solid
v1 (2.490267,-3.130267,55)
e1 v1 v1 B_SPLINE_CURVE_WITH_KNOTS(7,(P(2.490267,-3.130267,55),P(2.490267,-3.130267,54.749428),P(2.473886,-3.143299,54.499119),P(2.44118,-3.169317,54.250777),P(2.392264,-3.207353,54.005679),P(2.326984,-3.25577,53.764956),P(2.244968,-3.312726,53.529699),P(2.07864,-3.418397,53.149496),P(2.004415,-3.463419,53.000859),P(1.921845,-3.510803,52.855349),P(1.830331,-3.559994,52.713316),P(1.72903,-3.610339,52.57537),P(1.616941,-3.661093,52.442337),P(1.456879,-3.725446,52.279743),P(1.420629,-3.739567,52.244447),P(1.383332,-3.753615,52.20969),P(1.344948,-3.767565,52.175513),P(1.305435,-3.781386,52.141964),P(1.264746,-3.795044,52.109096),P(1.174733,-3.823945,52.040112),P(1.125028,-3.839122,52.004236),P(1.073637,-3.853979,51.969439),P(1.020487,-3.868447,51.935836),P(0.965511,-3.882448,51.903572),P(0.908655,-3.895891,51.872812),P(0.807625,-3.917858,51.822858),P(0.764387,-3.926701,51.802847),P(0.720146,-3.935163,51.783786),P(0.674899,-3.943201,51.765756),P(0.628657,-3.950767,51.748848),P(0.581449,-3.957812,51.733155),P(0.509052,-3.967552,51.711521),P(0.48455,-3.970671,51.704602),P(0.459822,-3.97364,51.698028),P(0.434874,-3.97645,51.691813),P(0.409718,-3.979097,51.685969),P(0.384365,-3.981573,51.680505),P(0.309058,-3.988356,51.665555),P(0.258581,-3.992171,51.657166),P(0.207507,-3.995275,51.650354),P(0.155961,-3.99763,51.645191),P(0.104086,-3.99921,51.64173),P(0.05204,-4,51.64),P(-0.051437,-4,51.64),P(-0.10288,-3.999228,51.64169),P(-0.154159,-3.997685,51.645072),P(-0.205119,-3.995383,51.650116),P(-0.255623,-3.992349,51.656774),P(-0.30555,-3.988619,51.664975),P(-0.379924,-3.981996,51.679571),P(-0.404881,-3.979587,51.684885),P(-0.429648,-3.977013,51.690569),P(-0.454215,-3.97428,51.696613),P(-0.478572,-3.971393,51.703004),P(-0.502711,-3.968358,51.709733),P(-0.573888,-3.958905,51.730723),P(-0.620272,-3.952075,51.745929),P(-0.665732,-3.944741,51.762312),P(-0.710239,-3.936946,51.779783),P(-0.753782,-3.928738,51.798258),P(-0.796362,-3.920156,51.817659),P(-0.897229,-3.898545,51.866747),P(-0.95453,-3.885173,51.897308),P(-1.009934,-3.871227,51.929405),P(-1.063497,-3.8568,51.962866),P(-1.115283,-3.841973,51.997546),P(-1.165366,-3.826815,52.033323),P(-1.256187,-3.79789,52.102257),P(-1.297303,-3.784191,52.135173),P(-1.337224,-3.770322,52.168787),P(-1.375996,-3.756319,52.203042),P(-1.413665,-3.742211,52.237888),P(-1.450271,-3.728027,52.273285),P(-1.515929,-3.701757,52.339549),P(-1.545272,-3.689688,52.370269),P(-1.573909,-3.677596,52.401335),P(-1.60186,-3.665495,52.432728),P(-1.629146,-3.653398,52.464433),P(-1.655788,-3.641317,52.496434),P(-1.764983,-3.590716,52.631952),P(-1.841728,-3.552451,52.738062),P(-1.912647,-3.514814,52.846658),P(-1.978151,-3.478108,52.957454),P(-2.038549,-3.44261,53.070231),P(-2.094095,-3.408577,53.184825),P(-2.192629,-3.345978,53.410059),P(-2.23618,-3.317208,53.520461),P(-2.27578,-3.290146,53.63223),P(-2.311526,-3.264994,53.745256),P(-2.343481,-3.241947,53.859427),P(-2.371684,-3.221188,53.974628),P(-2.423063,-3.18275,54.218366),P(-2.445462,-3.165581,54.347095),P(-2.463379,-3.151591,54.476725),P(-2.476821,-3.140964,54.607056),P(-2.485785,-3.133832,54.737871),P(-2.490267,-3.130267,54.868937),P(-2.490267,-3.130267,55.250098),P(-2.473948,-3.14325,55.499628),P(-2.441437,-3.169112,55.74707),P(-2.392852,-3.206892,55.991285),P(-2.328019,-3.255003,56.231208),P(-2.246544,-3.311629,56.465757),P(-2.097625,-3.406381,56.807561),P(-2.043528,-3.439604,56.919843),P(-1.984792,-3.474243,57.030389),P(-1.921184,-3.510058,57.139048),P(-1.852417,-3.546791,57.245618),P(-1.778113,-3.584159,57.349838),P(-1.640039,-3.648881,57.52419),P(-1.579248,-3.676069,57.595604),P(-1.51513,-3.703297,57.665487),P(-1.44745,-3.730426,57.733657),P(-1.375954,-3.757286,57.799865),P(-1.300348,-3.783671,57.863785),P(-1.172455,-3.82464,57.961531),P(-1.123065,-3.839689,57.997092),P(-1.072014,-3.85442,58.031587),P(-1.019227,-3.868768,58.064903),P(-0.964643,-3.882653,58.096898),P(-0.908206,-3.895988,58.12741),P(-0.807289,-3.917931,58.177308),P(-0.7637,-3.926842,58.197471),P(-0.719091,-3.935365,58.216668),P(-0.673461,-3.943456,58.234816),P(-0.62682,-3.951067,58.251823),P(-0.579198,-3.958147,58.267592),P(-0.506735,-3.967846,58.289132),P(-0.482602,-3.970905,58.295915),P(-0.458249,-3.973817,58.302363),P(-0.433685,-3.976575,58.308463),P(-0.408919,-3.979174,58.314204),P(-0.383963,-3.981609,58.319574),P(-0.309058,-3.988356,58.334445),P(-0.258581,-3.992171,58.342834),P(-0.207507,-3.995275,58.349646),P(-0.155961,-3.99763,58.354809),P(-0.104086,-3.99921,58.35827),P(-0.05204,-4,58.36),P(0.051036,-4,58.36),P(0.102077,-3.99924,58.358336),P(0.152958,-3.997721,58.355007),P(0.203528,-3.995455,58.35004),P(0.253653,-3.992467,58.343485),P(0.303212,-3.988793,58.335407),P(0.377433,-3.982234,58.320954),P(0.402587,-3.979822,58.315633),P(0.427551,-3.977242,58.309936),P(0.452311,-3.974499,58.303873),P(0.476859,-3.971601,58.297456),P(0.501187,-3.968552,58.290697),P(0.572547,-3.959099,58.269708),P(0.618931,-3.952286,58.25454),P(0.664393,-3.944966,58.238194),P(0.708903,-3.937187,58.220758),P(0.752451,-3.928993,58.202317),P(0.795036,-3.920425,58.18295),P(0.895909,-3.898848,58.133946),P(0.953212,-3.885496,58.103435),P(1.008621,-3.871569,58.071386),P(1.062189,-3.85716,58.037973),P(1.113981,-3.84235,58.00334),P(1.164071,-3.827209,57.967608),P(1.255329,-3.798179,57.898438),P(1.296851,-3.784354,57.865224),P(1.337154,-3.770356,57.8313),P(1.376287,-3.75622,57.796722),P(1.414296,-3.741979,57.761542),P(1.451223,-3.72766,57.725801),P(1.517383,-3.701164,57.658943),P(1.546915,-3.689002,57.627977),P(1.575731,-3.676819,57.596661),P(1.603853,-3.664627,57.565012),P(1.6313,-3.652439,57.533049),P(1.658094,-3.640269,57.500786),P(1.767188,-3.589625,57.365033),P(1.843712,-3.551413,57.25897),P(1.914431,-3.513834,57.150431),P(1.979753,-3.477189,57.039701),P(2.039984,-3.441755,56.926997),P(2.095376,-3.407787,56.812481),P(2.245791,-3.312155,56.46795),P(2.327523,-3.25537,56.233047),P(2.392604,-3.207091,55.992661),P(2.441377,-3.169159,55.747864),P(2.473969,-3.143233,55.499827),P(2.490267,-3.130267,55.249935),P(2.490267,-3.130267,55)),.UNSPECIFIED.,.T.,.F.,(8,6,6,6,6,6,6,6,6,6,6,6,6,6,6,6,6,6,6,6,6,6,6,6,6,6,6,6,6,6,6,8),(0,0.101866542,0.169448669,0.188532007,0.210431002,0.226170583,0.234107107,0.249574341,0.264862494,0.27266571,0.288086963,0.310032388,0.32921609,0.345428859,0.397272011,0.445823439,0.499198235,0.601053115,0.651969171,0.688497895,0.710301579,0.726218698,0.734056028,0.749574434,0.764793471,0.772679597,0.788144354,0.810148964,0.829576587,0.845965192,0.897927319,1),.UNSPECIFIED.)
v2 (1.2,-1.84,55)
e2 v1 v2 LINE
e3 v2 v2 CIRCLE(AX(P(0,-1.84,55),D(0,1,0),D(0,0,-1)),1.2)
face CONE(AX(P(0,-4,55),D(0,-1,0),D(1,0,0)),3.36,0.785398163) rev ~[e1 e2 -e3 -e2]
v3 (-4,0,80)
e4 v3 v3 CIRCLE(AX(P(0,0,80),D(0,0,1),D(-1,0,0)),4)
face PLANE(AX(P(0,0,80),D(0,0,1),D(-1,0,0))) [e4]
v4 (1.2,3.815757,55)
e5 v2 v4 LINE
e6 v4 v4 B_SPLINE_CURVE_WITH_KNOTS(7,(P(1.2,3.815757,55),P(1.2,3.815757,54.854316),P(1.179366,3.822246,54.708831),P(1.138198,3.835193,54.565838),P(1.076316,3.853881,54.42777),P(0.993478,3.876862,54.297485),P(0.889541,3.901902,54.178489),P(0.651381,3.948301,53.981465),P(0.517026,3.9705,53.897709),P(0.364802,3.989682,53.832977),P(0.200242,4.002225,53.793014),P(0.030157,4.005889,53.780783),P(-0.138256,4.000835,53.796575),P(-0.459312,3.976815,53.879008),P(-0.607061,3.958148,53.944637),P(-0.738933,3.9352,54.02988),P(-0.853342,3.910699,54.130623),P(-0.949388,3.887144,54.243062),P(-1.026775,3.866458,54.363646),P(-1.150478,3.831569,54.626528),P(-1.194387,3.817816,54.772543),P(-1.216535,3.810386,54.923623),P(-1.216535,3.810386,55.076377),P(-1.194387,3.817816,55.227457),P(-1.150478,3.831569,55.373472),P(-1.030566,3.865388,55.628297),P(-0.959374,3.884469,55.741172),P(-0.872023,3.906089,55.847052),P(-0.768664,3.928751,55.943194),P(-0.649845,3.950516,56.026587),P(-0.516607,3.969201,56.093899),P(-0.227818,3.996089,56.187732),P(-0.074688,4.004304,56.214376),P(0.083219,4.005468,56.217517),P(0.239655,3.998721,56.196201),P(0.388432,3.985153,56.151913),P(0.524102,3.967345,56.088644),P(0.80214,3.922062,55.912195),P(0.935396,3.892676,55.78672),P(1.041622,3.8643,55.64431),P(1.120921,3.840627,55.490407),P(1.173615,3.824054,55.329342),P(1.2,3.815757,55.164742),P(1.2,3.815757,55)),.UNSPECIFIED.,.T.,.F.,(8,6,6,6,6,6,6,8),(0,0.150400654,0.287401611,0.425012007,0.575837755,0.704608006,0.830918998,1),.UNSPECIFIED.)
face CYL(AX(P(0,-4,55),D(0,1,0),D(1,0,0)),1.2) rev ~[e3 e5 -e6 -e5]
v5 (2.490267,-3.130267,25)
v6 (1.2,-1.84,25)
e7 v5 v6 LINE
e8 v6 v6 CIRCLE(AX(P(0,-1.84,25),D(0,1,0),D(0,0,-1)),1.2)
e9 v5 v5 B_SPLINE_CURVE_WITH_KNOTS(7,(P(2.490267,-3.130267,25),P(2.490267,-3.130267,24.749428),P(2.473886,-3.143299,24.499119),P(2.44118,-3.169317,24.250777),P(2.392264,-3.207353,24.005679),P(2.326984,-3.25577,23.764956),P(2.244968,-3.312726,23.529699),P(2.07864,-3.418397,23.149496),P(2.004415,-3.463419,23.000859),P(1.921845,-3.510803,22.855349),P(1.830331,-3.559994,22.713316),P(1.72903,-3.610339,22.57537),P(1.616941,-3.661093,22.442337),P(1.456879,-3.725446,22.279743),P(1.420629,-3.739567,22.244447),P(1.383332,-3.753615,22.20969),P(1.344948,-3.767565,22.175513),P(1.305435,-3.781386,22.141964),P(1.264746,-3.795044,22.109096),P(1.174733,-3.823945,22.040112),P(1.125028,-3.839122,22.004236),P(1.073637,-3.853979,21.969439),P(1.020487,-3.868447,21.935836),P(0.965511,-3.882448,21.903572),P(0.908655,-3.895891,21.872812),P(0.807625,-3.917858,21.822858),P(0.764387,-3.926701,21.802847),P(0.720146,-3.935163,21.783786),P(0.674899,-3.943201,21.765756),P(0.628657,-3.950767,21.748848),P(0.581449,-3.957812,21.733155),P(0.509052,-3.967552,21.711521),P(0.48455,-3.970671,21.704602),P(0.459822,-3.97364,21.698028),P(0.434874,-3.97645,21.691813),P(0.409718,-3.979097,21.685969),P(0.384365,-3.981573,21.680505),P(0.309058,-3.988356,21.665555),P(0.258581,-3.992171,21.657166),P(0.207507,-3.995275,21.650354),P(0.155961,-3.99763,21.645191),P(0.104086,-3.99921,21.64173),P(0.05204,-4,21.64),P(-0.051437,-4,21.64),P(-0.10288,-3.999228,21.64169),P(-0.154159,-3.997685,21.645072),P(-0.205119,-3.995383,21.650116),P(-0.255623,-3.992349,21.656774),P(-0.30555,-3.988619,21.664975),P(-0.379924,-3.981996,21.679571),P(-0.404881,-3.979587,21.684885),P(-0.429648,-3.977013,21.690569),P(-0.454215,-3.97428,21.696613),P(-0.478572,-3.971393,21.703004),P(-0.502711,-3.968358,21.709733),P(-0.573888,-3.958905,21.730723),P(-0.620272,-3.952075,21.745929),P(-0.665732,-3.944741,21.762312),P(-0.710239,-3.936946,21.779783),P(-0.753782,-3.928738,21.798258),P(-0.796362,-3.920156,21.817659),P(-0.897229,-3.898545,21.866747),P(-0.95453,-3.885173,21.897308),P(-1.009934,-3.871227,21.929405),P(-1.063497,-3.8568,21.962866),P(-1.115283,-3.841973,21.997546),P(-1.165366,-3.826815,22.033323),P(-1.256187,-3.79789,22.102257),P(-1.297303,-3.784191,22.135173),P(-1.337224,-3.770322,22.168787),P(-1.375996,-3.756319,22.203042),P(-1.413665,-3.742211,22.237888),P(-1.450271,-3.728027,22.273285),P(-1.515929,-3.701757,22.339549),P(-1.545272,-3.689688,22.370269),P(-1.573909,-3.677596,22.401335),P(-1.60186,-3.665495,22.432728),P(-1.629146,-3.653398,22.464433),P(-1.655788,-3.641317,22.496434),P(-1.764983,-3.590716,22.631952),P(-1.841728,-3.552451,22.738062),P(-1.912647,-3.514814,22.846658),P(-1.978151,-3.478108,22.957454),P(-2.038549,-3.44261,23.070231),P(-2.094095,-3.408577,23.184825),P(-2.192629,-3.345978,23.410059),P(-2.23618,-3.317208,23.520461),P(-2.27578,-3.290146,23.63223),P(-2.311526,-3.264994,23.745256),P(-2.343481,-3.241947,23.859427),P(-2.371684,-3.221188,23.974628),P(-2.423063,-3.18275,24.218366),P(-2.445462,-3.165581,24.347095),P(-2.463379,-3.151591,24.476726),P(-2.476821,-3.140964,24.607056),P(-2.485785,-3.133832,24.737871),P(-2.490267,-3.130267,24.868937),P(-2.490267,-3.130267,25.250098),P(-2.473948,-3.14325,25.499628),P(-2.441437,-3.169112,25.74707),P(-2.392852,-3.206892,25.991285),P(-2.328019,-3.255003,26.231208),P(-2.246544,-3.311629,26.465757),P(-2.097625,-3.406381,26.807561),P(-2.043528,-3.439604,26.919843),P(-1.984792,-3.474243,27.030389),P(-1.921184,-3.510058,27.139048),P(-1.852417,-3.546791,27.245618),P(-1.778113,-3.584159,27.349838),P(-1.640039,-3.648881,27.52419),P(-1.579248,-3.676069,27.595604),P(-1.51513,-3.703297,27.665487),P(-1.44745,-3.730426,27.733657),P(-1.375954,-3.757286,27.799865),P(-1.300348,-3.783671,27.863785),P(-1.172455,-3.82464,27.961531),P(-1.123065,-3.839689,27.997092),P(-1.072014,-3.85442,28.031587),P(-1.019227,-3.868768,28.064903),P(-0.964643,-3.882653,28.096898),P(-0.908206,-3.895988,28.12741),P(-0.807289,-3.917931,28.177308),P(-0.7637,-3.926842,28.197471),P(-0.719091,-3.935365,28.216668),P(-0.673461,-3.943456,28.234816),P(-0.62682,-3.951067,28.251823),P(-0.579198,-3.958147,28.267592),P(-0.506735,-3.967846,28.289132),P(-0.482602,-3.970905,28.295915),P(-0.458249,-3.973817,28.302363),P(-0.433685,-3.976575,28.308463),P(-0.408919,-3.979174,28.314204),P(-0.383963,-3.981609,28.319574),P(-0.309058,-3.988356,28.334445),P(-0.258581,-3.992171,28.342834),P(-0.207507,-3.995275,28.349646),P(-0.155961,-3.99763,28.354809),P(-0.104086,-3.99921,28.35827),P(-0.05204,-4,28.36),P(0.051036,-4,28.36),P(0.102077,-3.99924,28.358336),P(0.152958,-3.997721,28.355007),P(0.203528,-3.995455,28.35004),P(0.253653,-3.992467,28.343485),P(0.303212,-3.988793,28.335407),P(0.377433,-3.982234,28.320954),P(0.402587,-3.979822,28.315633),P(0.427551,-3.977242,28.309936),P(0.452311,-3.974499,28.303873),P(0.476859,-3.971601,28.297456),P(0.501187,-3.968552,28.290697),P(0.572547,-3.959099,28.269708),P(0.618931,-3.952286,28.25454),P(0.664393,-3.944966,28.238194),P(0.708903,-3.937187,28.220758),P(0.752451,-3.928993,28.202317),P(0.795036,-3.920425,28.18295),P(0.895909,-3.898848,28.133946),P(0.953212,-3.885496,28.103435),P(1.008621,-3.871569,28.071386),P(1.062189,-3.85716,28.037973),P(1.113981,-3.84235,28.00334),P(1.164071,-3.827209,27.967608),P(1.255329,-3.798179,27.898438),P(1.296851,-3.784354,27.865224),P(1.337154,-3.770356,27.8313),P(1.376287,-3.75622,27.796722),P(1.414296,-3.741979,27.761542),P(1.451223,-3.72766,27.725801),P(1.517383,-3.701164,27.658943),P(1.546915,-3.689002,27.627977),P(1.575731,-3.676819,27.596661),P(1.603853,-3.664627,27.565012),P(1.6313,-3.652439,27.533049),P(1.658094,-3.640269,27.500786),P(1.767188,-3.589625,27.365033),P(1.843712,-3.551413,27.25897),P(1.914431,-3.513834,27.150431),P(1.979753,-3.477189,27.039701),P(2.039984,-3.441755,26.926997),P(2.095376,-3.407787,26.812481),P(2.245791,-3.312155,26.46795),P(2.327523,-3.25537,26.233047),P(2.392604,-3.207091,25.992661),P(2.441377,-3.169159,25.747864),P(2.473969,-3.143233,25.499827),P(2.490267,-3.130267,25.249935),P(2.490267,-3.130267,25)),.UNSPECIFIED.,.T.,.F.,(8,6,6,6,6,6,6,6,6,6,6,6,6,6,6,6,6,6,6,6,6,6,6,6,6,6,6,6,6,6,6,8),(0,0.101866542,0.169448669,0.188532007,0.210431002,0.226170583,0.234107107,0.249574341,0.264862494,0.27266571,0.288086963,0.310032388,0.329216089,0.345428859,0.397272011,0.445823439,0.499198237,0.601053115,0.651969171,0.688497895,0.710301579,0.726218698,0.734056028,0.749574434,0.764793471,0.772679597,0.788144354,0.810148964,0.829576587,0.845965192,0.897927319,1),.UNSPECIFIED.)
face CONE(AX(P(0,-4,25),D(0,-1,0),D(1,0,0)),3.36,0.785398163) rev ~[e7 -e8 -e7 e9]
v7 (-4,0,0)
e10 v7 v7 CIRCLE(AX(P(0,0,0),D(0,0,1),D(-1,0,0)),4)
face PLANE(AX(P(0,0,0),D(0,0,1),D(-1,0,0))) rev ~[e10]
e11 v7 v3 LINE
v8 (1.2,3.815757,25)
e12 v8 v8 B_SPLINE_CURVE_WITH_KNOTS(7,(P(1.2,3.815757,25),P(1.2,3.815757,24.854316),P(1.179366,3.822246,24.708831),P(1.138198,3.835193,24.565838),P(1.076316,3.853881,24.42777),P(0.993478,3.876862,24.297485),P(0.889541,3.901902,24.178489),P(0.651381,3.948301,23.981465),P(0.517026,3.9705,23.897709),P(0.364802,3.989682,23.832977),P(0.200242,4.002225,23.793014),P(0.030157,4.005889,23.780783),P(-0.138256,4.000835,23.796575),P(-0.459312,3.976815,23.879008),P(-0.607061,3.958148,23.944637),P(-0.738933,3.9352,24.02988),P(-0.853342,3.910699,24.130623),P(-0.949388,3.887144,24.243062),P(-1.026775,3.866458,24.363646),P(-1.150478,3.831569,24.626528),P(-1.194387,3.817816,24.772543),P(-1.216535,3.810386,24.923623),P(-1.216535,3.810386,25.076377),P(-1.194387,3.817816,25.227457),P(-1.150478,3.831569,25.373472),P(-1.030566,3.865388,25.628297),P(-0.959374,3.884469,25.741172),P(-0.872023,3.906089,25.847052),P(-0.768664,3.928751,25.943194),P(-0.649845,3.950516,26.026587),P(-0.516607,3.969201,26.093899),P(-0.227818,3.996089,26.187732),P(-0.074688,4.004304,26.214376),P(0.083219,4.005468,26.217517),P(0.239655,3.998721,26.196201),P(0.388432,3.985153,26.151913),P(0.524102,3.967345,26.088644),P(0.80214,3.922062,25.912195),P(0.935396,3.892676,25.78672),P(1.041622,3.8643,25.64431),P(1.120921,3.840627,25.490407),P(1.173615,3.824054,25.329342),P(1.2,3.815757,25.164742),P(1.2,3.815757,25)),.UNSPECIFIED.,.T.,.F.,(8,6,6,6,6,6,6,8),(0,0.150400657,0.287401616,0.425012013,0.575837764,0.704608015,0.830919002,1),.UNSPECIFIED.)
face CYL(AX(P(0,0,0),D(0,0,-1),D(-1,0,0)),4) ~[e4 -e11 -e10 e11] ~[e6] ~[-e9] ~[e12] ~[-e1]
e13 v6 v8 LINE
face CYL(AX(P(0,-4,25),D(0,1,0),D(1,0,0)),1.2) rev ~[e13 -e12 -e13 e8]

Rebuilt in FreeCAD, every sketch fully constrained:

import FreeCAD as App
import Part
import Sketcher

V = App.Vector
Q = App.Units.Quantity

doc = App.newDocument("Part")
body = doc.addObject("PartDesign::Body", "Body")

sketch1 = doc.addObject("Sketcher::SketchObject", "Sketch")
body.addObject(sketch1)
sketch1.AttachmentSupport = (doc.XY_Plane, [""])
sketch1.MapMode = "FlatFace"
sketch1.addGeometry(Part.Circle(V(0, 0, 0), V(0, 0, 1), 4), False)
sketch1.addConstraint(Sketcher.Constraint("Coincident", 0, 3, -1, 1))
sketch1.addConstraint(Sketcher.Constraint("Diameter", 0, Q("8 mm")))
pad1 = doc.addObject("PartDesign::Pad", "Pad")
body.addObject(pad1)
pad1.Profile = sketch1
pad1.Length = 80

sketch2 = doc.addObject("Sketcher::SketchObject", "Sketch001")
body.addObject(sketch2)
sketch2.AttachmentSupport = (doc.XZ_Plane, [""])
sketch2.MapMode = "FlatFace"
sketch2.AttachmentOffset = App.Placement(V(0, 0, -4), App.Rotation())
sketch2.addGeometry(Part.Circle(V(0, 55, 0), V(0, 0, 1), 1.2), False)
sketch2.addGeometry(Part.Circle(V(0, 25, 0), V(0, 0, 1), 1.2), False)
sketch2.addConstraint(Sketcher.Constraint("Equal", 0, 1))
sketch2.addConstraint(Sketcher.Constraint("PointOnObject", 0, 3, -2))
sketch2.addConstraint(Sketcher.Constraint("PointOnObject", 1, 3, -2))
sketch2.addConstraint(Sketcher.Constraint("Diameter", 0, Q("2.4 mm")))
sketch2.addConstraint(Sketcher.Constraint("DistanceY", -1, 1, 0, 3, Q("55 mm")))
sketch2.addConstraint(Sketcher.Constraint("DistanceY", -1, 1, 1, 3, Q("25 mm")))
doc.recompute()
hole = doc.addObject("PartDesign::Hole", "Hole")
body.addObject(hole)
hole.Profile = sketch2
hole.ThreadType = "None"
hole.Diameter = 2.4
hole.DepthType = "Dimension"
hole.Depth = 50
hole.DrillPoint = "Angled"
hole.DrillPointAngle = 118
hole.HoleCutType = "Countersink"
hole.HoleCutDiameter = 6.72
hole.HoleCutCountersinkAngle = 90
hole.Reversed = True
body2 = doc.addObject("PartDesign::Body", "Body001")
doc.recompute()

body.Placement = App.Placement(V(0, 0, 0), App.Rotation(V(0, 0, 1), 180))
boolean = doc.addObject("PartDesign::Boolean", "Boolean")
body2.addObject(boolean)
boolean.Type = "Fuse"
boolean.addObjects([body])

doc.recompute()
